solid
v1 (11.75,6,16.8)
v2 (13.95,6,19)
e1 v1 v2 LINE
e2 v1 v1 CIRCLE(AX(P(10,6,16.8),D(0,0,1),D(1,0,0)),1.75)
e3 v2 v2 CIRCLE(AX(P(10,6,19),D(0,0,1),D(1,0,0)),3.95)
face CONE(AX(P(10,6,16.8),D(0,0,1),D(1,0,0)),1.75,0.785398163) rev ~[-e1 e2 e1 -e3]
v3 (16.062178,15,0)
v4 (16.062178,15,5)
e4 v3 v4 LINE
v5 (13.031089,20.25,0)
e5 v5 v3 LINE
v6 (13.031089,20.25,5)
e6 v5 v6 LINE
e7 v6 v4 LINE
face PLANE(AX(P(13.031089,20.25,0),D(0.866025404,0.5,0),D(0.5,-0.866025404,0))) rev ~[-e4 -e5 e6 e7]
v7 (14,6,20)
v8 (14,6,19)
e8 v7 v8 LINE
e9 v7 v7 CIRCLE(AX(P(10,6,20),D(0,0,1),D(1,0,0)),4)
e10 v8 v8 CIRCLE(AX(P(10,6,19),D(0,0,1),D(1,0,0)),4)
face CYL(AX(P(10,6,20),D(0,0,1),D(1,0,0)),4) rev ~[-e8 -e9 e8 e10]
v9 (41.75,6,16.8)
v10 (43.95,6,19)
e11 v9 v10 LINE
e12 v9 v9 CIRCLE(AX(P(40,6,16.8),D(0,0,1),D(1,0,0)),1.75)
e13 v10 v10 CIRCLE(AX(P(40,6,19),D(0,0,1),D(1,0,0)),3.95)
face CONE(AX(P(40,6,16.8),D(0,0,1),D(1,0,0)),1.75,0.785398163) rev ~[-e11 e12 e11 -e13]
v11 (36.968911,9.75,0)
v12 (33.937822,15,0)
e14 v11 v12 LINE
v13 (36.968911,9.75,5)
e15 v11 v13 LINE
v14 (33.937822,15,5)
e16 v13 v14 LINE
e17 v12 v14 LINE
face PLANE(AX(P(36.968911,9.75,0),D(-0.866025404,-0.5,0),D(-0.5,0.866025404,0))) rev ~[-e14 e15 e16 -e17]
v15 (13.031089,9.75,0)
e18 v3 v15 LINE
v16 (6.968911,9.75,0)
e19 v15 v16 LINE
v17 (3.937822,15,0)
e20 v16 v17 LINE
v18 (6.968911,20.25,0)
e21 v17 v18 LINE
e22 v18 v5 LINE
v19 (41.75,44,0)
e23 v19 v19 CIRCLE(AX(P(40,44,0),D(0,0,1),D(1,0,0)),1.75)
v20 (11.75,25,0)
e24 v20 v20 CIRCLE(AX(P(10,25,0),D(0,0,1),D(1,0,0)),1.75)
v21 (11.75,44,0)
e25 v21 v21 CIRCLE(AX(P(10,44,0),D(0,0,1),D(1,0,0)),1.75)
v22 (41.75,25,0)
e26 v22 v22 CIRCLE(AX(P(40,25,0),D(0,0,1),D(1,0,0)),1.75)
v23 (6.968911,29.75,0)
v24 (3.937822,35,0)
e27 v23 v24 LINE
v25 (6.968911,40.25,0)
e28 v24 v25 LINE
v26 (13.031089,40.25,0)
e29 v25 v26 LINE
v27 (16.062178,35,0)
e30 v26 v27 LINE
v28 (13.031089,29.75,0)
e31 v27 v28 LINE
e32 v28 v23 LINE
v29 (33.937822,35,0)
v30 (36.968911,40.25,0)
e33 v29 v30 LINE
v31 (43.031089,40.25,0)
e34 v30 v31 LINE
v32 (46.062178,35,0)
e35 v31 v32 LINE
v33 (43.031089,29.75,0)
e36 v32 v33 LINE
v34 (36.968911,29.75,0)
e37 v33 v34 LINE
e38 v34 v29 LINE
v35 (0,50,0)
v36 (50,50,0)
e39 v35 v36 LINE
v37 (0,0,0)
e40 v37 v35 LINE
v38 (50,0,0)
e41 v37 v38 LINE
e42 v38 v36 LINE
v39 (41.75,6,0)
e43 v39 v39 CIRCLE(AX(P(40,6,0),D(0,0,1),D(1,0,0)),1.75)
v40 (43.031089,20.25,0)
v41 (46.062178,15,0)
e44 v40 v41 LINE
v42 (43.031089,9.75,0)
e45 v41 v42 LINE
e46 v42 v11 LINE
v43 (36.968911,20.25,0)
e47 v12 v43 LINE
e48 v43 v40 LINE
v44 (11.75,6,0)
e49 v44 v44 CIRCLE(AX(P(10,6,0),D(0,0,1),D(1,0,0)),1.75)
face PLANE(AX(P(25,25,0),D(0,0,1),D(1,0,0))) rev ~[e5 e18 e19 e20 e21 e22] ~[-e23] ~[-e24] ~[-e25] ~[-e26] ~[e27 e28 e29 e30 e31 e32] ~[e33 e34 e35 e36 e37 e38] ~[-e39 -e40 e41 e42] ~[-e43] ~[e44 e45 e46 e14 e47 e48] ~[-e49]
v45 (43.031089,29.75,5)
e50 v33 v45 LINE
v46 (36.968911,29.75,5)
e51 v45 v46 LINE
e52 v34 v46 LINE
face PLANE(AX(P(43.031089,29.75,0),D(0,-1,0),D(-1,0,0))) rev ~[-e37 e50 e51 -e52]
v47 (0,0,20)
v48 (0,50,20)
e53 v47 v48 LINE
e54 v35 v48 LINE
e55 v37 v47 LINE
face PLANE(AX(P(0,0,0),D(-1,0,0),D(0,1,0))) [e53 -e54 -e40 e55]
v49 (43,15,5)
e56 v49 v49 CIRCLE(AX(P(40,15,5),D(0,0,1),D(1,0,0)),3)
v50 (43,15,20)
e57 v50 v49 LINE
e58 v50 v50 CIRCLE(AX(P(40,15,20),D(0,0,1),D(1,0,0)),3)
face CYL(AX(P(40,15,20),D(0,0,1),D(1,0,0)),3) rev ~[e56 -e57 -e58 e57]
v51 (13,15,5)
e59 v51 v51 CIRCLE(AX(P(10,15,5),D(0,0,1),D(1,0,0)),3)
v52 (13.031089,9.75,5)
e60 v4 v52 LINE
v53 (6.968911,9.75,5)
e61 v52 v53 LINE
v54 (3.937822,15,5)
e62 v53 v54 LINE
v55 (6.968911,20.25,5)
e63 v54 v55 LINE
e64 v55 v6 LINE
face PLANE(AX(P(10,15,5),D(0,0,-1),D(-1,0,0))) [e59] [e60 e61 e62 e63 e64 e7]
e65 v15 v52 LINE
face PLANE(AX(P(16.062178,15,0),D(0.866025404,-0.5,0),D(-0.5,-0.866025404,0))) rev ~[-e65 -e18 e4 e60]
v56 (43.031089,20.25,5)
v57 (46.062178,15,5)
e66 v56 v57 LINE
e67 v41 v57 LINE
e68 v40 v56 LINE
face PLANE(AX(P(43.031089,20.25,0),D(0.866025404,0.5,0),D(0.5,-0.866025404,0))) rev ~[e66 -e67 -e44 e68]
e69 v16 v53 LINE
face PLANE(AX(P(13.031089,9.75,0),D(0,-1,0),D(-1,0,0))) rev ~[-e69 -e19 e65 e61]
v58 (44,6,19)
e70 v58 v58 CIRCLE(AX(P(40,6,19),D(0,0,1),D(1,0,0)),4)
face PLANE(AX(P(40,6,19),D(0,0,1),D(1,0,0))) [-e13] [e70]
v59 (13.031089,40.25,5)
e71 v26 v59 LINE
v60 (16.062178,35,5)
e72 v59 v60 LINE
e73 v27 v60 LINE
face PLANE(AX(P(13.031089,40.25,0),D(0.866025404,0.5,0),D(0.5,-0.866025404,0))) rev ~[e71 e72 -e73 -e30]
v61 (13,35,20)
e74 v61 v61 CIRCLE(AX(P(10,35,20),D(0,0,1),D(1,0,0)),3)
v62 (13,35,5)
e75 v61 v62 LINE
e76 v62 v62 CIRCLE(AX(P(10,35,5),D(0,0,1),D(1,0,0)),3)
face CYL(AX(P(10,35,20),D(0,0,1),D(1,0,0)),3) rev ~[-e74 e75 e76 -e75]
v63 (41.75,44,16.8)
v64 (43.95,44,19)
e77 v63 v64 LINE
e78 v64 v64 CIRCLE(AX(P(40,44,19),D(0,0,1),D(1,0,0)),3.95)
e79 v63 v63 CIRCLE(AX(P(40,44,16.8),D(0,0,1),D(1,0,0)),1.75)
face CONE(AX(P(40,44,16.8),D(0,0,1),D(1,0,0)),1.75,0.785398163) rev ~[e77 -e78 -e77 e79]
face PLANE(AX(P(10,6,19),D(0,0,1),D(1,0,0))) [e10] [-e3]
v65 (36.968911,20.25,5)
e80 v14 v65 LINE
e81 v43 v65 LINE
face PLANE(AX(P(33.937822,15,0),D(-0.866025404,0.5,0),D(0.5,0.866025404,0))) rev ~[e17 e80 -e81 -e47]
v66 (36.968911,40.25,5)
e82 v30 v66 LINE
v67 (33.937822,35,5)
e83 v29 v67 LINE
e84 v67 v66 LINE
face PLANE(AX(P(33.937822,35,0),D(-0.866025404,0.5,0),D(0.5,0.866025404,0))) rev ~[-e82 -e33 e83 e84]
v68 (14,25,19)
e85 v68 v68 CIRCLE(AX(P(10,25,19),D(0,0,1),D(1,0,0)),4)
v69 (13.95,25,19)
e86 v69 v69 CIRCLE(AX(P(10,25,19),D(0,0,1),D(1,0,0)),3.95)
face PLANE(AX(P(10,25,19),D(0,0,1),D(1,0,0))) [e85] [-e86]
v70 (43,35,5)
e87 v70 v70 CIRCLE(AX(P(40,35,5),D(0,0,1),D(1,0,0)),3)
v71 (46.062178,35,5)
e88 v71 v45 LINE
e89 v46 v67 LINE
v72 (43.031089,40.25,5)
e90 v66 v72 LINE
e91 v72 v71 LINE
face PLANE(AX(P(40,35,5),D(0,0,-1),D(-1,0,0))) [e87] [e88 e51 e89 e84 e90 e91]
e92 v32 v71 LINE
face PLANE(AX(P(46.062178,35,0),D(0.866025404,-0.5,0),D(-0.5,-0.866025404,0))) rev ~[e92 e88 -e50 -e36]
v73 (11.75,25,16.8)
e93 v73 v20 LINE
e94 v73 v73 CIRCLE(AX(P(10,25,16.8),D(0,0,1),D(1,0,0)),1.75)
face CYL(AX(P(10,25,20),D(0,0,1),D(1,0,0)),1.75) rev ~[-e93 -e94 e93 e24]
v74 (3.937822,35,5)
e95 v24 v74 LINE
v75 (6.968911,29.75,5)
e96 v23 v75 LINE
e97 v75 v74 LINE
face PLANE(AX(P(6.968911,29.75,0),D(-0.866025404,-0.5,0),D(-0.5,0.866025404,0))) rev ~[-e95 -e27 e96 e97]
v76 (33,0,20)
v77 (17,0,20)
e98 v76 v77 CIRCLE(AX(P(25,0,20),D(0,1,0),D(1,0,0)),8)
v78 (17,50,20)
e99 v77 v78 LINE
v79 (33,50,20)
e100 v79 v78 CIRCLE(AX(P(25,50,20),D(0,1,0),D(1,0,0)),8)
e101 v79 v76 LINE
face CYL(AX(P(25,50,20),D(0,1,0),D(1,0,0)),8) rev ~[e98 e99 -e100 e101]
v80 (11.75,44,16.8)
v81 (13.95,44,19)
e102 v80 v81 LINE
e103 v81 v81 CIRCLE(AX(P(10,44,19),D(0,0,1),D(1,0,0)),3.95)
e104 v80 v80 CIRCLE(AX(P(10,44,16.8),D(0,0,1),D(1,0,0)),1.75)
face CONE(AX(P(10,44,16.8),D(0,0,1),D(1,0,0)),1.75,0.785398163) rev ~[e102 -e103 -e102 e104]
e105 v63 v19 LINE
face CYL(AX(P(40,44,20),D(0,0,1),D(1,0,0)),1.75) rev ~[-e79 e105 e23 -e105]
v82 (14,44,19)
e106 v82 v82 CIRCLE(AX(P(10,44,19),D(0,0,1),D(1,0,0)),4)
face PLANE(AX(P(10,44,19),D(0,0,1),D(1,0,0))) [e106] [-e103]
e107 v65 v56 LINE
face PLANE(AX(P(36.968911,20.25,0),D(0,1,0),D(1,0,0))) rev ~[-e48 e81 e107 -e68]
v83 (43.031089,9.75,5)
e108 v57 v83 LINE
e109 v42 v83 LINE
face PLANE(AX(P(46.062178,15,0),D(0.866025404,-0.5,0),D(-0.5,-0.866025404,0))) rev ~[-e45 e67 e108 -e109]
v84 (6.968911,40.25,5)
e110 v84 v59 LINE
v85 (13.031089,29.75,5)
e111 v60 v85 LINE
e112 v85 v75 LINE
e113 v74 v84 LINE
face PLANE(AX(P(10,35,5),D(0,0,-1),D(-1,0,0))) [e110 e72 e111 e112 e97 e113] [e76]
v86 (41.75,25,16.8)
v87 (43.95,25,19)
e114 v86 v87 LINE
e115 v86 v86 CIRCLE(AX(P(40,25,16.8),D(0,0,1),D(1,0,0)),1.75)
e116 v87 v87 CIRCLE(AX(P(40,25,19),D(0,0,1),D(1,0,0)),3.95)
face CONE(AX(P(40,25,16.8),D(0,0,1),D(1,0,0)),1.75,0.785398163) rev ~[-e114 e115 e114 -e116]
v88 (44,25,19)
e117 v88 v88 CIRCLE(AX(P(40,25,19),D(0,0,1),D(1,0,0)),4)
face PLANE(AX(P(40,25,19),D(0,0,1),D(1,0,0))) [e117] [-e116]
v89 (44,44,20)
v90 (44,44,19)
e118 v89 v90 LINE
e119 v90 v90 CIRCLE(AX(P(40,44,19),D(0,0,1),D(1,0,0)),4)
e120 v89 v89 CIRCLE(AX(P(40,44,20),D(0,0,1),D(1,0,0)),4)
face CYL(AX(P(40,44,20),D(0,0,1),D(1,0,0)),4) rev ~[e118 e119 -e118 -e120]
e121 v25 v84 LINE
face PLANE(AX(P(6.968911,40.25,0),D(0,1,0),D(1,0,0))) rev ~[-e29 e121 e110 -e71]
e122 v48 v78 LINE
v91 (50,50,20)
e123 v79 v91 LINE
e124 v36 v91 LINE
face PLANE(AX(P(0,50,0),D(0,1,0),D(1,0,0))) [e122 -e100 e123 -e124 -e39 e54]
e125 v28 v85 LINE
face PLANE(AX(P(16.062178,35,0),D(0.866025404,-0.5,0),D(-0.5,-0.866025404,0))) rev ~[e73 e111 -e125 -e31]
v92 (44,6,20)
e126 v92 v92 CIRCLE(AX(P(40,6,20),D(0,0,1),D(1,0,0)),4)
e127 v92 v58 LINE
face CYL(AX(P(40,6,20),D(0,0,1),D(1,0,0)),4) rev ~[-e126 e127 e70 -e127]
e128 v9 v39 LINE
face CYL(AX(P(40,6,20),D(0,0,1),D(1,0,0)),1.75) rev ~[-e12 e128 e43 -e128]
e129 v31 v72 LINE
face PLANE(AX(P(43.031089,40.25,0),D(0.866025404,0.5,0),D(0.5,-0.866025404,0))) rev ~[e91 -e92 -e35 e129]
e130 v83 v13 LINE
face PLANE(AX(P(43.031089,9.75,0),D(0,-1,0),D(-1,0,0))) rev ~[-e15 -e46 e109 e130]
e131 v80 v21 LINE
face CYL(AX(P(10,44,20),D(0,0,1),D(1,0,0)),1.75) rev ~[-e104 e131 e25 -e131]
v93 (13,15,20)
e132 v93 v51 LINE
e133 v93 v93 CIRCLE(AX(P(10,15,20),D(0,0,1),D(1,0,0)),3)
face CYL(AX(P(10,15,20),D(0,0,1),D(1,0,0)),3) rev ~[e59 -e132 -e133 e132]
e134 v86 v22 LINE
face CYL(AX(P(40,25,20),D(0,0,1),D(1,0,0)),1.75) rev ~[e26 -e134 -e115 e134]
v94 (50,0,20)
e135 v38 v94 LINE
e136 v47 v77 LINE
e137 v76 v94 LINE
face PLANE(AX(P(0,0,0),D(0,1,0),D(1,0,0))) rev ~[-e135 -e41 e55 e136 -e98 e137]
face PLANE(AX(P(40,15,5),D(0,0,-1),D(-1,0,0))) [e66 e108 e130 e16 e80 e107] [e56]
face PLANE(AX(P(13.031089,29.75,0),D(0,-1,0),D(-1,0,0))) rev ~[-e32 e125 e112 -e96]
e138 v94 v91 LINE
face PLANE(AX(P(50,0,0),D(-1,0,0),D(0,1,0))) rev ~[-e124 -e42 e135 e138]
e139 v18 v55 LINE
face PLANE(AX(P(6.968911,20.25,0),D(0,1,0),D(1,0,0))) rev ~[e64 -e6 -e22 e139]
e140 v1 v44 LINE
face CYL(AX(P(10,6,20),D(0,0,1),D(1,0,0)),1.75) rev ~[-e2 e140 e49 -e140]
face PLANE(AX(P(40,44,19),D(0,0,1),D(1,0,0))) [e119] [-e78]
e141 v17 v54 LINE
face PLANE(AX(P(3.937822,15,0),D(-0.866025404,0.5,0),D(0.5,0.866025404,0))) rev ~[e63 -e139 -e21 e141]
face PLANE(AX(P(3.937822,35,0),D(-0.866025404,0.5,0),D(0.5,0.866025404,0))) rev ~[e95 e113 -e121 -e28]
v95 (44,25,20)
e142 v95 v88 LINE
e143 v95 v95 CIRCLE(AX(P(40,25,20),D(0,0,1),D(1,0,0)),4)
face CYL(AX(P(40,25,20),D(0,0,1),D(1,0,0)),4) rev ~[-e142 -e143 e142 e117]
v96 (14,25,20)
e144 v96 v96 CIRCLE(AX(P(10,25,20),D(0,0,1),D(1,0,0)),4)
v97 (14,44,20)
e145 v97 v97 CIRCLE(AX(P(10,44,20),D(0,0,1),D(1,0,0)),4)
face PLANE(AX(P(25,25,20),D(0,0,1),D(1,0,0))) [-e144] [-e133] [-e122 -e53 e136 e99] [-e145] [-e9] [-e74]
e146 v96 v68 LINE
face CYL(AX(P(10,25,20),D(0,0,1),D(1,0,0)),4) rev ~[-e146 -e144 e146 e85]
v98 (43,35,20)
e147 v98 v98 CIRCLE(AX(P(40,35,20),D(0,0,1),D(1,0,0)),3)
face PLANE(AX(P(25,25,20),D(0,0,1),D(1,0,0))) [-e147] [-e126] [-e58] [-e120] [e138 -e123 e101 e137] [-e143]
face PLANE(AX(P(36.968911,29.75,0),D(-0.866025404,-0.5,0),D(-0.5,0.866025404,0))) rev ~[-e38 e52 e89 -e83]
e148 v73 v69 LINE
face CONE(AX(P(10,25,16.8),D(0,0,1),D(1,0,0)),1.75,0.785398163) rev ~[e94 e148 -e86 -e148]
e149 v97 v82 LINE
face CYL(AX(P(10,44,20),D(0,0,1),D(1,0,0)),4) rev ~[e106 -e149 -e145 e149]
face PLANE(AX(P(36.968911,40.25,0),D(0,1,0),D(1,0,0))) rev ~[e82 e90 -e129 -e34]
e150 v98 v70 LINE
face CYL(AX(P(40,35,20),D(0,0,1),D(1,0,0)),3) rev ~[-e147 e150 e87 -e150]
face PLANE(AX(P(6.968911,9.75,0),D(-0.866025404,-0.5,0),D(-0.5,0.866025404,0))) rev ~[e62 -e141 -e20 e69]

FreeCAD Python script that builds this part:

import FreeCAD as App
import Part
import Sketcher
from FreeCAD import Vector
Q = App.Units.Quantity


def edges_at(feature, points):
    """Names of the edges that pass closest to the given points."""
    edges = feature.Shape.Edges
    near = lambda p: min(range(len(edges)), key=lambda i: edges[i].distToShape(Part.Vertex(*p))[0])
    return sorted({f"Edge{near(p) + 1}" for p in points})


def add_polygon(sketch, points):
    """Adds a closed chain of lines whose ends are joined by coincident constraints."""
    first, n = sketch.GeometryCount, len(points)
    for a, b in zip(points, points[1:] + points[:1]):
        sketch.addGeometry(Part.LineSegment(App.Vector(*a, 0), App.Vector(*b, 0)), False)
    for i in range(n):
        sketch.addConstraint(Sketcher.Constraint("Coincident", first + i, 2, first + (i + 1) % n, 1))

doc = App.newDocument("Part")
body = doc.addObject("PartDesign::Body", "Body")

sketch1 = doc.addObject("Sketcher::SketchObject", "Sketch")
body.addObject(sketch1)
sketch1.AttachmentSupport = (doc.XY_Plane, [""])
sketch1.MapMode = "FlatFace"
add_polygon(sketch1, [(0, 50), (0, 0), (50, 0), (50, 50)])
sketch1.addConstraint([
    Sketcher.Constraint("Vertical", 0),
    Sketcher.Constraint("Horizontal", 1),
    Sketcher.Constraint("Vertical", 2),
    Sketcher.Constraint("Horizontal", 3),
    Sketcher.Constraint("Coincident", 0, 2, -1, 1),
    Sketcher.Constraint("Equal", 3, 0),
    Sketcher.Constraint("DistanceX", 1, 1, 1, 2, 50.0),
])
pad1 = doc.addObject("PartDesign::Pad", "Pad")
body.addObject(pad1)
pad1.Profile = sketch1
pad1.Length = 20

sketch2 = doc.addObject("Sketcher::SketchObject", "Sketch001")
body.addObject(sketch2)
sketch2.AttachmentSupport = (doc.XZ_Plane, [""])
sketch2.MapMode = "FlatFace"
sketch2.AttachmentOffset = App.Placement(Vector(0, 0, -50), App.Rotation())
sketch2.addGeometry(Part.Circle(Vector(25, 20, 0), Vector(0, 0, 1), 8), False)
sketch2.addConstraint([
    Sketcher.Constraint("Diameter", 0, 16.0),
    Sketcher.Constraint("DistanceX", -1, 1, 0, 3, 25.0),
    Sketcher.Constraint("DistanceY", -1, 1, 0, 3, 20.0),
])
pocket1 = doc.addObject("PartDesign::Pocket", "Pocket")
body.addObject(pocket1)
pocket1.Profile = sketch2
pocket1.Length = 67.94221
pocket1.Reversed = True

sketch3 = doc.addObject("Sketcher::SketchObject", "Sketch002")
body.addObject(sketch3)
sketch3.AttachmentSupport = (doc.XY_Plane, [""])
sketch3.MapMode = "FlatFace"
sketch3.AttachmentOffset = App.Placement(Vector(0, 0, 20), App.Rotation())
sketch3.addGeometry([
    Part.Circle(Vector(10, 35, 0), Vector(0, 0, 1), 3),
    Part.Circle(Vector(10, 15, 0), Vector(0, 0, 1), 3),
    Part.Circle(Vector(40, 35, 0), Vector(0, 0, 1), 3),
    Part.Circle(Vector(40, 15, 0), Vector(0, 0, 1), 3),
], False)
sketch3.addConstraint([
    Sketcher.Constraint("Equal", 0, 1),
    Sketcher.Constraint("Equal", 1, 2),
    Sketcher.Constraint("Equal", 2, 3),
    Sketcher.Constraint("Horizontal", 0, 3, 2, 3),
    Sketcher.Constraint("Horizontal", 1, 3, 3, 3),
    Sketcher.Constraint("Vertical", 0, 3, 1, 3),
    Sketcher.Constraint("Vertical", 2, 3, 3, 3),
    Sketcher.Constraint("Diameter", 0, 6.0),
    Sketcher.Constraint("DistanceX", -1, 1, 0, 3, 10.0),
    Sketcher.Constraint("DistanceY", -1, 1, 0, 3, 35.0),
    Sketcher.Constraint("DistanceY", -1, 1, 1, 3, 15.0),
    Sketcher.Constraint("DistanceX", -1, 1, 2, 3, 40.0),
])
pocket2 = doc.addObject("PartDesign::Pocket", "Pocket001")
body.addObject(pocket2)
pocket2.Profile = sketch3
pocket2.Length = 43

sketch4 = doc.addObject("Sketcher::SketchObject", "Sketch003")
body.addObject(sketch4)
sketch4.AttachmentSupport = (doc.XY_Plane, [""])
sketch4.MapMode = "FlatFace"
add_polygon(sketch4, [(4, 15), (7, 20), (13, 20), (16, 15), (13, 10), (7, 10)])
add_polygon(sketch4, [(43, 20), (46, 15), (43, 10), (37, 10), (34, 15), (37, 20)])
add_polygon(sketch4, [(37, 30), (34, 35), (37, 40), (43, 40), (46, 35), (43, 30)])
add_polygon(sketch4, [(7, 30), (4, 35), (7, 40), (13, 40), (16, 35), (13, 30)])
sketch4.addConstraint([
    Sketcher.Constraint("Horizontal", 1),
    Sketcher.Constraint("Horizontal", 4),
    Sketcher.Constraint("Horizontal", 8),
    Sketcher.Constraint("Horizontal", 11),
    Sketcher.Constraint("Horizontal", 14),
    Sketcher.Constraint("Horizontal", 17),
    Sketcher.Constraint("Horizontal", 20),
    Sketcher.Constraint("Horizontal", 23),
    Sketcher.Constraint("Parallel", 0, 3),
    Sketcher.Constraint("Parallel", 2, 5),
    Sketcher.Constraint("Parallel", 5, 6),
    Sketcher.Constraint("Parallel", 3, 7),
    Sketcher.Constraint("Parallel", 6, 9),
    Sketcher.Constraint("Parallel", 7, 10),
    Sketcher.Constraint("Parallel", 9, 12),
    Sketcher.Constraint("Parallel", 10, 13),
    Sketcher.Constraint("Parallel", 12, 15),
    Sketcher.Constraint("Parallel", 13, 16),
    Sketcher.Constraint("Parallel", 15, 18),
    Sketcher.Constraint("Parallel", 16, 19),
    Sketcher.Constraint("Parallel", 18, 21),
    Sketcher.Constraint("Parallel", 19, 22),
    Sketcher.Constraint("Horizontal", 2, 2, 5, 2),
    Sketcher.Constraint("Horizontal", 5, 2, 6, 2),
    Sketcher.Constraint("Horizontal", 4, 2, 7, 2),
    Sketcher.Constraint("Horizontal", 6, 2, 9, 2),
    Sketcher.Constraint("Horizontal", 1, 2, 10, 2),
    Sketcher.Constraint("Horizontal", 12, 2, 15, 2),
    Sketcher.Constraint("Horizontal", 15, 2, 18, 2),
    Sketcher.Constraint("Horizontal", 14, 2, 19, 2),
    Sketcher.Constraint("Horizontal", 18, 2, 21, 2),
    Sketcher.Constraint("Horizontal", 17, 2, 22, 2),
    Sketcher.Constraint("Vertical", 1, 2, 3, 2),
    Sketcher.Constraint("Vertical", 0, 2, 4, 2),
    Sketcher.Constraint("Vertical", 9, 2, 12, 2),
    Sketcher.Constraint("Vertical", 10, 2, 13, 2),
    Sketcher.Constraint("Vertical", 11, 2, 14, 2),
    Sketcher.Constraint("Vertical", 14, 2, 16, 2),
    Sketcher.Constraint("Vertical", 5, 2, 18, 2),
    Sketcher.Constraint("Vertical", 3, 2, 20, 2),
    Sketcher.Constraint("Equal", 4, 8),
    Sketcher.Constraint("Angle", 0, Q("60 deg")),
    Sketcher.Constraint("DistanceY", -1, 1, 2, 2, 15.0),
    Sketcher.Constraint("DistanceY", -1, 1, 12, 2, 35.0),
    Sketcher.Constraint("DistanceX", 2, 2, 6, 2, 30.0),
    Sketcher.Constraint("DistanceY", 3, 2, 1, 2, 10.5),
    Sketcher.Constraint("DistanceX", 1, 1, 1, 2, 6.062178),
    Sketcher.Constraint("DistanceX", -1, 1, 0, 2, 6.968911),
])
pocket3 = doc.addObject("PartDesign::Pocket", "Pocket002")
body.addObject(pocket3)
pocket3.Profile = sketch4
pocket3.Length = 5
pocket3.Reversed = True

sketch5 = doc.addObject("Sketcher::SketchObject", "Sketch004")
body.addObject(sketch5)
sketch5.AttachmentSupport = (doc.XY_Plane, [""])
sketch5.MapMode = "FlatFace"
sketch5.AttachmentOffset = App.Placement(Vector(0, 0, 20), App.Rotation())
sketch5.addGeometry([
    Part.Circle(Vector(10, 6, 0), Vector(0, 0, 1), 1.8),
    Part.Circle(Vector(10, 25, 0), Vector(0, 0, 1), 1.8),
    Part.Circle(Vector(10, 44, 0), Vector(0, 0, 1), 1.8),
    Part.Circle(Vector(40, 44, 0), Vector(0, 0, 1), 1.8),
    Part.Circle(Vector(40, 25, 0), Vector(0, 0, 1), 1.8),
    Part.Circle(Vector(40, 6, 0), Vector(0, 0, 1), 1.8),
], False)
sketch5.addConstraint([
    Sketcher.Constraint("Equal", 0, 1),
    Sketcher.Constraint("Equal", 1, 2),
    Sketcher.Constraint("Equal", 2, 3),
    Sketcher.Constraint("Equal", 3, 4),
    Sketcher.Constraint("Equal", 4, 5),
    Sketcher.Constraint("Horizontal", 2, 3, 3, 3),
    Sketcher.Constraint("Horizontal", 1, 3, 4, 3),
    Sketcher.Constraint("Horizontal", 0, 3, 5, 3),
    Sketcher.Constraint("Vertical", 0, 3, 1, 3),
    Sketcher.Constraint("Vertical", 1, 3, 2, 3),
    Sketcher.Constraint("Vertical", 3, 3, 4, 3),
    Sketcher.Constraint("Vertical", 4, 3, 5, 3),
    Sketcher.Constraint("Diameter", 0, 3.5),
    Sketcher.Constraint("DistanceX", -1, 1, 0, 3, 10.0),
    Sketcher.Constraint("DistanceY", -1, 1, 0, 3, 6.0),
    Sketcher.Constraint("DistanceY", -1, 1, 1, 3, 25.0),
    Sketcher.Constraint("DistanceY", -1, 1, 2, 3, 44.0),
    Sketcher.Constraint("DistanceX", -1, 1, 3, 3, 40.0),
])
pocket4 = doc.addObject("PartDesign::Pocket", "Pocket003")
body.addObject(pocket4)
pocket4.Profile = sketch5
pocket4.Length = 41

sketch6 = doc.addObject("Sketcher::SketchObject", "Sketch005")
body.addObject(sketch6)
sketch6.AttachmentSupport = (doc.XY_Plane, [""])
sketch6.MapMode = "FlatFace"
sketch6.AttachmentOffset = App.Placement(Vector(0, 0, 20), App.Rotation())
sketch6.addGeometry([
    Part.Circle(Vector(10, 44, 0), Vector(0, 0, 1), 4),
    Part.Circle(Vector(10, 25, 0), Vector(0, 0, 1), 4),
    Part.Circle(Vector(10, 6, 0), Vector(0, 0, 1), 4),
    Part.Circle(Vector(40, 6, 0), Vector(0, 0, 1), 4),
    Part.Circle(Vector(40, 25, 0), Vector(0, 0, 1), 4),
    Part.Circle(Vector(40, 44, 0), Vector(0, 0, 1), 4),
], False)
sketch6.addConstraint([
    Sketcher.Constraint("Equal", 0, 1),
    Sketcher.Constraint("Equal", 1, 2),
    Sketcher.Constraint("Equal", 2, 3),
    Sketcher.Constraint("Equal", 3, 4),
    Sketcher.Constraint("Equal", 4, 5),
    Sketcher.Constraint("Horizontal", 2, 3, 3, 3),
    Sketcher.Constraint("Horizontal", 1, 3, 4, 3),
    Sketcher.Constraint("Horizontal", 0, 3, 5, 3),
    Sketcher.Constraint("Vertical", 0, 3, 1, 3),
    Sketcher.Constraint("Vertical", 1, 3, 2, 3),
    Sketcher.Constraint("Vertical", 3, 3, 4, 3),
    Sketcher.Constraint("Vertical", 4, 3, 5, 3),
    Sketcher.Constraint("Diameter", 0, 8.0),
    Sketcher.Constraint("DistanceX", -1, 1, 0, 3, 10.0),
    Sketcher.Constraint("DistanceY", -1, 1, 0, 3, 44.0),
    Sketcher.Constraint("DistanceY", -1, 1, 1, 3, 25.0),
    Sketcher.Constraint("DistanceY", -1, 1, 2, 3, 6.0),
    Sketcher.Constraint("DistanceX", -1, 1, 3, 3, 40.0),
])
pocket5 = doc.addObject("PartDesign::Pocket", "Pocket004")
body.addObject(pocket5)
pocket5.Profile = sketch6
pocket5.Length = 1
doc.recompute()

chamfer = doc.addObject("PartDesign::Chamfer", "Chamfer")
body.addObject(chamfer)
chamfer.Base = (pocket5, edges_at(pocket5, [
    (8.25, 44, 19),
    (8.25, 25, 19),
    (8.25, 6, 19),
    (38.25, 6, 19),
    (38.25, 25, 19),
    (38.25, 44, 19),
]))
chamfer.Size = 2.2

doc.recompute()
